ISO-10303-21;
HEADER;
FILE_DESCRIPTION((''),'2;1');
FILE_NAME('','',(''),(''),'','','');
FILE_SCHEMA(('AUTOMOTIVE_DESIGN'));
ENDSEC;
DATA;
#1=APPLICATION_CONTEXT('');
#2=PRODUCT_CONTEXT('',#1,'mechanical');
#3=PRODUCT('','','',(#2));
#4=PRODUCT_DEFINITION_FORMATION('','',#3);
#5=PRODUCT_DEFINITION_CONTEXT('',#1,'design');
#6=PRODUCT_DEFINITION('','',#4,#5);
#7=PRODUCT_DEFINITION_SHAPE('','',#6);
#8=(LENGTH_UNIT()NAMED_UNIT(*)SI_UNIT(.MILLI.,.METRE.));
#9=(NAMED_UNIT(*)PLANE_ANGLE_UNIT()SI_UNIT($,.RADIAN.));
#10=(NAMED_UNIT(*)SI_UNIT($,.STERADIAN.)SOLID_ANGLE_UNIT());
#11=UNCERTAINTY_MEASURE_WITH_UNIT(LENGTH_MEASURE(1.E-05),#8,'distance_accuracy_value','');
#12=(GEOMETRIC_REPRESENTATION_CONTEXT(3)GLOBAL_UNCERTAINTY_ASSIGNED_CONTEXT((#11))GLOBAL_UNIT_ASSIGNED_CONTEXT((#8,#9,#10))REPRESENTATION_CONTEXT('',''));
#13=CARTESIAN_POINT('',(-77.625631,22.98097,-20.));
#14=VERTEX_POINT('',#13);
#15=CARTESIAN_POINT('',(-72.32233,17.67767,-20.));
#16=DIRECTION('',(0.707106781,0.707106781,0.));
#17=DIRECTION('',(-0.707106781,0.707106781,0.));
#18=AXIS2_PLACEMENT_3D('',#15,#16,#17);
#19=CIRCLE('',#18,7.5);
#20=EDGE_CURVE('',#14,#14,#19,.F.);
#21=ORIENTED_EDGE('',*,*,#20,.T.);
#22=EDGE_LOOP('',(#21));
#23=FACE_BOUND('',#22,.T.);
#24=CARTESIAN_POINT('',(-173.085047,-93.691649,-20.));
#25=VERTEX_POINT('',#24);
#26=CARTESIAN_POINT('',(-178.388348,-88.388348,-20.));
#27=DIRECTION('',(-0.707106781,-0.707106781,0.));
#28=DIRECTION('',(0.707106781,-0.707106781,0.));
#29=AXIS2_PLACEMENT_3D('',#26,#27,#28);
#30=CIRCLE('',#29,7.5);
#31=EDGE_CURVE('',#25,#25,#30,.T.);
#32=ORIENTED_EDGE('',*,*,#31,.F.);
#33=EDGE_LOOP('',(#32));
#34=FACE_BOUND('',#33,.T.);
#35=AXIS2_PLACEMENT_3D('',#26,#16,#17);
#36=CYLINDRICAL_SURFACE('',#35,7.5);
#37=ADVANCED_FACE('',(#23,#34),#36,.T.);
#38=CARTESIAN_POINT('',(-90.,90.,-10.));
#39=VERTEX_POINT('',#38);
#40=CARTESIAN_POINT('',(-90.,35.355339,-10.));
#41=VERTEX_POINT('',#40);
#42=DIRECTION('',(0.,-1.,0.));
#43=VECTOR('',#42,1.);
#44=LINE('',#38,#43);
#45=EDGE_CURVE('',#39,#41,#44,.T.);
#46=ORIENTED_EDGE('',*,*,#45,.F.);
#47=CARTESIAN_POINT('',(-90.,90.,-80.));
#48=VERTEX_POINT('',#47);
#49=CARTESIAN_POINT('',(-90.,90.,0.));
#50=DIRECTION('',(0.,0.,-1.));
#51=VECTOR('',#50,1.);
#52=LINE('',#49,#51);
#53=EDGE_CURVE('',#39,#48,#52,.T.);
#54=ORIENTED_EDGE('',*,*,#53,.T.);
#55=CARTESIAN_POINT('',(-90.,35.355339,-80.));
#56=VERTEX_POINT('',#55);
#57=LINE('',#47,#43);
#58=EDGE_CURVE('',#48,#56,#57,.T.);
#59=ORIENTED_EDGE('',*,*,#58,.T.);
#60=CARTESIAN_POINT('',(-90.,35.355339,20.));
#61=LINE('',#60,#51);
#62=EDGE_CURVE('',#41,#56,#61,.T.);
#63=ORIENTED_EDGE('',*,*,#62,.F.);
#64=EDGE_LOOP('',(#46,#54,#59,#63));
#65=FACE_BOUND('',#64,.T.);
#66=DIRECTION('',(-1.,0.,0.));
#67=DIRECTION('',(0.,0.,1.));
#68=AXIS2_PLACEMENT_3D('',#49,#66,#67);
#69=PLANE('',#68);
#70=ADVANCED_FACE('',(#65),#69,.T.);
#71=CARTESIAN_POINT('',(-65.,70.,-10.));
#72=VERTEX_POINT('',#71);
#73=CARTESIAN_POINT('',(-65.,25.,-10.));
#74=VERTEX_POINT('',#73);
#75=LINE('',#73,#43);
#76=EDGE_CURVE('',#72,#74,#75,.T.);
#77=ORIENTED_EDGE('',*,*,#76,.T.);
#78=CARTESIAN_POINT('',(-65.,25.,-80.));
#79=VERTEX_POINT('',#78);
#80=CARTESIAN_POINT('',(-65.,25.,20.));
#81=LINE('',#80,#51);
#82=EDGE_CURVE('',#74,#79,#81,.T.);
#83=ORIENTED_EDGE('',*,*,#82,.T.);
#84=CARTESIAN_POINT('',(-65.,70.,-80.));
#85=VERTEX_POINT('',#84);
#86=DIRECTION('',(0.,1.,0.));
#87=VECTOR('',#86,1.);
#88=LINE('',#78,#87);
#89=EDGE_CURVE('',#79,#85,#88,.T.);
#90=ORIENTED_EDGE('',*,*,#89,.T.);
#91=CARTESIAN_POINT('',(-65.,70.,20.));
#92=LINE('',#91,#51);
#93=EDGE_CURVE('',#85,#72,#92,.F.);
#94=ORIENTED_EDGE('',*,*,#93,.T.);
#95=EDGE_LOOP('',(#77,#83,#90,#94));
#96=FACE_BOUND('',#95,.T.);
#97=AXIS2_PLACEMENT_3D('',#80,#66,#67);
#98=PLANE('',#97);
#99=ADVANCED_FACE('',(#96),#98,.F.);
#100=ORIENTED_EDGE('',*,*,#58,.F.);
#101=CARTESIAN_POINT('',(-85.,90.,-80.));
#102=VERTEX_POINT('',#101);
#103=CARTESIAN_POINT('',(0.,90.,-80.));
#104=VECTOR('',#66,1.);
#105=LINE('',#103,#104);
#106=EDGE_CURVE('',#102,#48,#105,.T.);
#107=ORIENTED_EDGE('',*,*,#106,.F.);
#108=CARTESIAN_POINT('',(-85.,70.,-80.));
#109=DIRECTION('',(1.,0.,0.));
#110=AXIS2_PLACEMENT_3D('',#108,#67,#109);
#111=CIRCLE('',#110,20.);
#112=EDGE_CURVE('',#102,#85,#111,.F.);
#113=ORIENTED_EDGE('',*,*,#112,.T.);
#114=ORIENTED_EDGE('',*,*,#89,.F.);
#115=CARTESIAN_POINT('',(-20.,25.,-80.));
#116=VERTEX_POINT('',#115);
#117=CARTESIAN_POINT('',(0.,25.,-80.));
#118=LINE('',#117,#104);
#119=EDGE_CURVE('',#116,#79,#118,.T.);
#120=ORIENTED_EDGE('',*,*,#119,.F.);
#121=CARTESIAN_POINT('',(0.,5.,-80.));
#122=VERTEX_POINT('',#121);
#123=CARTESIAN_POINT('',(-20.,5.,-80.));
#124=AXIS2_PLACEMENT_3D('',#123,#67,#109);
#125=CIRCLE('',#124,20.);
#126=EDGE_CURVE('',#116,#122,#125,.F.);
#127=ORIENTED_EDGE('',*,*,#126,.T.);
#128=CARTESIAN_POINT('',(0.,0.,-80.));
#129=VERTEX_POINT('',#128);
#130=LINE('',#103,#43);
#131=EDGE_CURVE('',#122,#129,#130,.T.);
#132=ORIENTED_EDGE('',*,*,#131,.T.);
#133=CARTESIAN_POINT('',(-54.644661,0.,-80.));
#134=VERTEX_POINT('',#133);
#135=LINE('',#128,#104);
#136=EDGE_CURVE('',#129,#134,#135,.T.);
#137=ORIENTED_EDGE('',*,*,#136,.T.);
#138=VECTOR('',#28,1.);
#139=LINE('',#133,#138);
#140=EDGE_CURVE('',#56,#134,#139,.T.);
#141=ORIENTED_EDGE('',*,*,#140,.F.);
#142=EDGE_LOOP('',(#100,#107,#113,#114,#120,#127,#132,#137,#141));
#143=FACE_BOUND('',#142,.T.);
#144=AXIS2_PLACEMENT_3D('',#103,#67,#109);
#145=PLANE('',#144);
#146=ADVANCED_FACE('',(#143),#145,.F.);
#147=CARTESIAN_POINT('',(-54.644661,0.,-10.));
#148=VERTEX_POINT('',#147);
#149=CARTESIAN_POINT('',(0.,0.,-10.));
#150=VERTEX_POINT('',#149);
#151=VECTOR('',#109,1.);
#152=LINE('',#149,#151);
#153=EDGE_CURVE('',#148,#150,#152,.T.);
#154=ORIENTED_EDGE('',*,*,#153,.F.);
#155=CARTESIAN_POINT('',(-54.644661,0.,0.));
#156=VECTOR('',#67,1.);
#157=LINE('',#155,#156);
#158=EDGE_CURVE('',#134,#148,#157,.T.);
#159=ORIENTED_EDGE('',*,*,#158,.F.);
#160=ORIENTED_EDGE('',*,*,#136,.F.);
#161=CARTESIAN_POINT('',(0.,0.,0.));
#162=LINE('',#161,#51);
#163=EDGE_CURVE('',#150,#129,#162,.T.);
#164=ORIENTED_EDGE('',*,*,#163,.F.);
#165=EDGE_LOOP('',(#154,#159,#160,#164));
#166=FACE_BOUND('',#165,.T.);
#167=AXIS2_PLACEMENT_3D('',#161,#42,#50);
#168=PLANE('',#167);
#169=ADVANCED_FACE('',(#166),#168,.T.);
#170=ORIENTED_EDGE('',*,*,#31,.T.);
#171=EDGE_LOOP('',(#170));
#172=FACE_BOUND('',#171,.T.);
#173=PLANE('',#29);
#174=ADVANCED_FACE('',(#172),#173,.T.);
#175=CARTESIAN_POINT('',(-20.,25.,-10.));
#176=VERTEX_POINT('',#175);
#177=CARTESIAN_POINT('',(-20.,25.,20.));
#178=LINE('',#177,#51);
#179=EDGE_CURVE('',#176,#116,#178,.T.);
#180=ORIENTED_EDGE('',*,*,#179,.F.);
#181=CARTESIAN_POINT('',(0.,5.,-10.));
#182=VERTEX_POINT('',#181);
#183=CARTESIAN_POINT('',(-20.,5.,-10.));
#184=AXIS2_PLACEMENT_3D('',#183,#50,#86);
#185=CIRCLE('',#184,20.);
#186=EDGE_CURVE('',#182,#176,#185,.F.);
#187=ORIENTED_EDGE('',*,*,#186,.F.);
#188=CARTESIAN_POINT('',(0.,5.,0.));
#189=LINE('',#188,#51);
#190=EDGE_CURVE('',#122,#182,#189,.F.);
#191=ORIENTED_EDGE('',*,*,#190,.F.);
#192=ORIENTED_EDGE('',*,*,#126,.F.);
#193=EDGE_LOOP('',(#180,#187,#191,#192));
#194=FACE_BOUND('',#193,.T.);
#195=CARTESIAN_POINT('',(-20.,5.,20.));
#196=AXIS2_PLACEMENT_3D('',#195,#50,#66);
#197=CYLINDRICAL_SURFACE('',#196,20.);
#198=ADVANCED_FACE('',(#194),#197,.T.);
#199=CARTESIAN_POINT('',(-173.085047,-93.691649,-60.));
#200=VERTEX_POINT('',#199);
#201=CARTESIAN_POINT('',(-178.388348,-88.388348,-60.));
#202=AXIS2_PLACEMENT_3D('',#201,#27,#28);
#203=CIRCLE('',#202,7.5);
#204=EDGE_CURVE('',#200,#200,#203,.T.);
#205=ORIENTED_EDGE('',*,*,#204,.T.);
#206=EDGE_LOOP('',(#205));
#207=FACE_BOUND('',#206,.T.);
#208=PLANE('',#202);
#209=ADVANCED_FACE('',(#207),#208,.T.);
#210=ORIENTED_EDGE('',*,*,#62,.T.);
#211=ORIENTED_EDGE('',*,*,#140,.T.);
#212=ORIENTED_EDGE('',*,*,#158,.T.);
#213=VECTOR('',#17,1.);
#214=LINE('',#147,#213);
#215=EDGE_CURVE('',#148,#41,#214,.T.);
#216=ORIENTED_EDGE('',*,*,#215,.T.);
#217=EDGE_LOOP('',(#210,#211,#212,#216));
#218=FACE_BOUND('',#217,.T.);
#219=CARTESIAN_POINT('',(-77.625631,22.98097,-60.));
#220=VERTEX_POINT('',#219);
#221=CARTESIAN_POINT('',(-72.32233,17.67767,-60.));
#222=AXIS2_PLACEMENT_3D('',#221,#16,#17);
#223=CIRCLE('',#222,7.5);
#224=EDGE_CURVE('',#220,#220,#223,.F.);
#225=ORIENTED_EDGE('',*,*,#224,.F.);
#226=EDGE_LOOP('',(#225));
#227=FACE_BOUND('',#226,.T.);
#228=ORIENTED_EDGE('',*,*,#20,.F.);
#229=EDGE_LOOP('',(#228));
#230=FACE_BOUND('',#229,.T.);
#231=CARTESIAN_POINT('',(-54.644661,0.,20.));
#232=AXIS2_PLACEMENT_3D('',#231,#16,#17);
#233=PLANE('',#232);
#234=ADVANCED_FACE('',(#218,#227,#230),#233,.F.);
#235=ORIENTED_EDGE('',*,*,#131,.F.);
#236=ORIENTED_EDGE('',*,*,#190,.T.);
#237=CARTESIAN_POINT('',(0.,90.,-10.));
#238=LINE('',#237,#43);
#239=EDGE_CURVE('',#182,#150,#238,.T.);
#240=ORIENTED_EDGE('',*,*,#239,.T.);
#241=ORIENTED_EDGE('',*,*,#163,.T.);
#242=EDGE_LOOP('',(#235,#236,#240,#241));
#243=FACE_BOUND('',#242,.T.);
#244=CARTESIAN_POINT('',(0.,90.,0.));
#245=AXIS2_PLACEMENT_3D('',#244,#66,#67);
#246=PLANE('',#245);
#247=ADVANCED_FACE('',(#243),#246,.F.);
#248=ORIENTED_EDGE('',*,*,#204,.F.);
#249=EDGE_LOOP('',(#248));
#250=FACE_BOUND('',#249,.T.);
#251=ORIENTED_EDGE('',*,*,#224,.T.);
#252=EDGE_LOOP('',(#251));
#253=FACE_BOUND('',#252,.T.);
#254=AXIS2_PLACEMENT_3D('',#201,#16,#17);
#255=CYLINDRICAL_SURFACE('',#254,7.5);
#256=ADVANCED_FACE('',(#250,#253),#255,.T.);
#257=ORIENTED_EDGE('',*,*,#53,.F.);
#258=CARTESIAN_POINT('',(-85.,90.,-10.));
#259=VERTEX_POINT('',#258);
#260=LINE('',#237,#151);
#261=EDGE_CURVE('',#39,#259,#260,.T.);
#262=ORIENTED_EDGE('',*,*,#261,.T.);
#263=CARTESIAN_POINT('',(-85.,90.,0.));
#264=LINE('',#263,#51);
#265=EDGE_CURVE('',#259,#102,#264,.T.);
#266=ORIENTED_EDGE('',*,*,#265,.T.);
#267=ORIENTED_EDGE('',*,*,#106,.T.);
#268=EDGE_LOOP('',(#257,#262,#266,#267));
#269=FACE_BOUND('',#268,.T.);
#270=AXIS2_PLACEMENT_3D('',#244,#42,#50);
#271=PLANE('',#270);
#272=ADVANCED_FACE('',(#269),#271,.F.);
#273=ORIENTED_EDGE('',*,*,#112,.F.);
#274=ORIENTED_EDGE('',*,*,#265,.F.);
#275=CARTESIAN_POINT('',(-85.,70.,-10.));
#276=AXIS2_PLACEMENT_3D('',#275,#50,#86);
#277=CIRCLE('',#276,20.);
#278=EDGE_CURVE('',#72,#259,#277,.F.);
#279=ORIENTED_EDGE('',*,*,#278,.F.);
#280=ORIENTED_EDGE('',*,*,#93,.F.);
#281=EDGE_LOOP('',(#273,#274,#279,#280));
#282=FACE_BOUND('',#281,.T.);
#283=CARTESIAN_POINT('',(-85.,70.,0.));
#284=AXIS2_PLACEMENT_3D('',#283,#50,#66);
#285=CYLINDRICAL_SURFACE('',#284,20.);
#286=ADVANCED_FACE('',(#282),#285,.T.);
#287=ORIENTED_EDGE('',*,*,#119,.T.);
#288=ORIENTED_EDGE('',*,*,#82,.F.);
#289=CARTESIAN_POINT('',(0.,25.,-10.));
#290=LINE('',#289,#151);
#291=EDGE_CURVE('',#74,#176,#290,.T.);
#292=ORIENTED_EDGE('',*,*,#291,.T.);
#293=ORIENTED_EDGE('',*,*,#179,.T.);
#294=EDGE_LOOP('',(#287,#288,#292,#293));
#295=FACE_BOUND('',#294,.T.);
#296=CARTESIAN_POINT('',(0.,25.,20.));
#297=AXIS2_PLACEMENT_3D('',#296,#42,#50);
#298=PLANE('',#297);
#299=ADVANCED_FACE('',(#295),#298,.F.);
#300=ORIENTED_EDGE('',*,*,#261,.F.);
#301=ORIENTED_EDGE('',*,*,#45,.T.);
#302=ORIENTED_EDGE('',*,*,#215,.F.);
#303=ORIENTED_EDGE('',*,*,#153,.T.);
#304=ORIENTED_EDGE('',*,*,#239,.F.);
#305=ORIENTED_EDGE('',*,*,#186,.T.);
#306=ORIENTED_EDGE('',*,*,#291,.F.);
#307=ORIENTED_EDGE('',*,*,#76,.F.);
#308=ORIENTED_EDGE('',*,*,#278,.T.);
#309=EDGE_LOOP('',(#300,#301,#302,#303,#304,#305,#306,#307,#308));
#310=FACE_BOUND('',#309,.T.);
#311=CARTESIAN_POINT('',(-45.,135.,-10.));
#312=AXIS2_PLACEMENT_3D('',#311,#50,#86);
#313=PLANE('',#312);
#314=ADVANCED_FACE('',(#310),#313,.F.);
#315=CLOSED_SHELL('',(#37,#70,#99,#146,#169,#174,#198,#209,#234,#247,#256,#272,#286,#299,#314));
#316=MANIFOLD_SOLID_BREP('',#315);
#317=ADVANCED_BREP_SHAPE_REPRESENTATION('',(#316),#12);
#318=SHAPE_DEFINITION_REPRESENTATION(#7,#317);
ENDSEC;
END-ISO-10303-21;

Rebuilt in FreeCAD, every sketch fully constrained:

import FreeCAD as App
import Part
import Sketcher


def edges_at(feature, points):
    """Names of the edges that pass closest to the given points."""
    edges = feature.Shape.Edges
    near = lambda p: min(range(len(edges)), key=lambda i: edges[i].distToShape(Part.Vertex(*p))[0])
    return sorted({f"Edge{near(p) + 1}" for p in points})

doc = App.newDocument("Part")
body = doc.addObject("PartDesign::Body", "Body")

sketch1 = doc.addObject("Sketcher::SketchObject", "Sketch")
body.addObject(sketch1)
sketch1.AttachmentSupport = (doc.XZ_Plane, [""])
sketch1.MapMode = "FlatFace"
sketch1.addGeometry([
    Part.LineSegment(App.Vector(-90, -80, 0), App.Vector(-90, 0, 0)),
    Part.LineSegment(App.Vector(-90, 0, 0), App.Vector(0, 0, 0)),
    Part.LineSegment(App.Vector(0, 0, 0), App.Vector(0, -80, 0)),
    Part.LineSegment(App.Vector(0, -80, 0), App.Vector(-90, -80, 0)),
], False)
sketch1.addConstraint([
    Sketcher.Constraint("Coincident", 0, 2, 1, 1),
    Sketcher.Constraint("Coincident", 1, 2, 2, 1),
    Sketcher.Constraint("Coincident", 2, 2, 3, 1),
    Sketcher.Constraint("Coincident", 3, 2, 0, 1),
    Sketcher.Constraint("Vertical", 0),
    Sketcher.Constraint("Horizontal", 1),
    Sketcher.Constraint("Vertical", 2),
    Sketcher.Constraint("Horizontal", 3),
    Sketcher.Constraint("Coincident", 1, 2, -1, 1),
    Sketcher.Constraint("DistanceX", 1, 1, 1, 2, 90.0),
    Sketcher.Constraint("DistanceY", 0, 1, 0, 2, 80.0),
])
pad1 = doc.addObject("PartDesign::Pad", "Pad")
body.addObject(pad1)
pad1.Profile = sketch1
pad1.Length = 90
pad1.Reversed = True

sketch2 = doc.addObject("Sketcher::SketchObject", "Sketch001")
body.addObject(sketch2)
sketch2.AttachmentSupport = (doc.XY_Plane, [""])
sketch2.MapMode = "FlatFace"
sketch2.AttachmentOffset = App.Placement(App.Vector(0, 0, -80), App.Rotation())
sketch2.addGeometry([
    Part.LineSegment(App.Vector(0, 90, 0), App.Vector(0, 25, 0)),
    Part.LineSegment(App.Vector(0, 25, 0), App.Vector(-65, 25, 0)),
    Part.LineSegment(App.Vector(-65, 25, 0), App.Vector(-65, 90, 0)),
    Part.LineSegment(App.Vector(-65, 90, 0), App.Vector(0, 90, 0)),
], False)
sketch2.addConstraint([
    Sketcher.Constraint("Coincident", 0, 2, 1, 1),
    Sketcher.Constraint("Coincident", 1, 2, 2, 1),
    Sketcher.Constraint("Coincident", 2, 2, 3, 1),
    Sketcher.Constraint("Coincident", 3, 2, 0, 1),
    Sketcher.Constraint("Vertical", 0),
    Sketcher.Constraint("Horizontal", 1),
    Sketcher.Constraint("Vertical", 2),
    Sketcher.Constraint("Horizontal", 3),
    Sketcher.Constraint("PointOnObject", 0, 2, -2),
    Sketcher.Constraint("Equal", 3, 0),
    Sketcher.Constraint("DistanceX", 1, 2, 1, 1, 65.0),
    Sketcher.Constraint("DistanceY", -1, 1, 0, 2, 25.0),
])
pocket1 = doc.addObject("PartDesign::Pocket", "Pocket")
body.addObject(pocket1)
pocket1.Profile = sketch2
pocket1.Length = 100
pocket1.Reversed = True
doc.recompute()

fillet = doc.addObject("PartDesign::Fillet", "Fillet")
body.addObject(fillet)
fillet.Base = (pocket1, edges_at(pocket1, [(-65, 90, -40), (0, 25, -40)]))
fillet.Radius = 20

sketch3 = doc.addObject("Sketcher::SketchObject", "Sketch002")
body.addObject(sketch3)
sketch3.AttachmentSupport = (doc.XY_Plane, [""])
sketch3.MapMode = "FlatFace"
sketch3.AttachmentOffset = App.Placement(App.Vector(0, 0, -80), App.Rotation())
sketch3.addGeometry([
    Part.LineSegment(App.Vector(-90, 35.355339, 0), App.Vector(-54.644661, 0, 0)),
    Part.LineSegment(App.Vector(-54.644661, 0, 0), App.Vector(-90, 0, 0)),
    Part.LineSegment(App.Vector(-90, 0, 0), App.Vector(-90, 35.355339, 0)),
], False)
sketch3.addConstraint([
    Sketcher.Constraint("Coincident", 0, 2, 1, 1),
    Sketcher.Constraint("Coincident", 1, 2, 2, 1),
    Sketcher.Constraint("Coincident", 2, 2, 0, 1),
    Sketcher.Constraint("Horizontal", 1),
    Sketcher.Constraint("Vertical", 2),
    Sketcher.Constraint("PointOnObject", 0, 2, -1),
    Sketcher.Constraint("Equal", 1, 2),
    Sketcher.Constraint("Distance", 0, 50.0),
    Sketcher.Constraint("DistanceX", 1, 2, -1, 1, 90.0),
])
pocket2 = doc.addObject("PartDesign::Pocket", "Pocket001")
body.addObject(pocket2)
pocket2.Profile = sketch3
pocket2.Length = 100
pocket2.Reversed = True

sketch4 = doc.addObject("Sketcher::SketchObject", "Sketch003")
body.addObject(sketch4)
sketch4.Placement = App.Placement(App.Vector(-27.32233, -27.32233, 0), App.Rotation(App.Vector(0, 0, 1), App.Vector(-0.707106781, 0.707106781, 0), App.Vector(-0.707106781, -0.707106781, 0), "ZXY"))
sketch4.addGeometry([
    Part.Circle(App.Vector(-60, 63.63961, 0), App.Vector(0, 0, 1), 7.5),
    Part.Circle(App.Vector(-20, 63.63961, 0), App.Vector(0, 0, 1), 7.5),
], False)
sketch4.addConstraint([
    Sketcher.Constraint("Equal", 0, 1),
    Sketcher.Constraint("Horizontal", 0, 3, 1, 3),
    Sketcher.Constraint("Diameter", 0, 15.0),
    Sketcher.Constraint("DistanceX", 0, 3, -1, 1, 60.0),
    Sketcher.Constraint("DistanceX", 1, 3, -1, 1, 20.0),
    Sketcher.Constraint("DistanceY", -1, 1, 0, 3, 63.63961),
])
pad2 = doc.addObject("PartDesign::Pad", "Pad001")
body.addObject(pad2)
pad2.Profile = sketch4
pad2.Length = 150

sketch5 = doc.addObject("Sketcher::SketchObject", "Sketch004")
body.addObject(sketch5)
sketch5.Placement = App.Placement(App.Vector(-27.32233, -27.32233, 0), App.Rotation(App.Vector(0, 0, 1), App.Vector(-0.707106781, 0.707106781, 0), App.Vector(-0.707106781, -0.707106781, 0), "ZXY"))
sketch5.addGeometry([
    Part.LineSegment(App.Vector(-10, 127.279221, 0), App.Vector(-10, 0, 0)),
    Part.LineSegment(App.Vector(-10, 0, 0), App.Vector(0, 0, 0)),
    Part.LineSegment(App.Vector(0, 0, 0), App.Vector(0, 127.279221, 0)),
    Part.LineSegment(App.Vector(0, 127.279221, 0), App.Vector(-10, 127.279221, 0)),
], False)
sketch5.addConstraint([
    Sketcher.Constraint("Coincident", 0, 2, 1, 1),
    Sketcher.Constraint("Coincident", 1, 2, 2, 1),
    Sketcher.Constraint("Coincident", 2, 2, 3, 1),
    Sketcher.Constraint("Coincident", 3, 2, 0, 1),
    Sketcher.Constraint("Vertical", 0),
    Sketcher.Constraint("Horizontal", 1),
    Sketcher.Constraint("Vertical", 2),
    Sketcher.Constraint("Horizontal", 3),
    Sketcher.Constraint("Coincident", 1, 2, -1, 1),
    Sketcher.Constraint("DistanceX", 1, 1, 1, 2, 10.0),
    Sketcher.Constraint("DistanceY", 0, 2, 0, 1, 127.279221),
])
pocket3 = doc.addObject("PartDesign::Pocket", "Pocket002")
body.addObject(pocket3)
pocket3.Profile = sketch5
pocket3.Type = "ThroughAll"

doc.recompute()
